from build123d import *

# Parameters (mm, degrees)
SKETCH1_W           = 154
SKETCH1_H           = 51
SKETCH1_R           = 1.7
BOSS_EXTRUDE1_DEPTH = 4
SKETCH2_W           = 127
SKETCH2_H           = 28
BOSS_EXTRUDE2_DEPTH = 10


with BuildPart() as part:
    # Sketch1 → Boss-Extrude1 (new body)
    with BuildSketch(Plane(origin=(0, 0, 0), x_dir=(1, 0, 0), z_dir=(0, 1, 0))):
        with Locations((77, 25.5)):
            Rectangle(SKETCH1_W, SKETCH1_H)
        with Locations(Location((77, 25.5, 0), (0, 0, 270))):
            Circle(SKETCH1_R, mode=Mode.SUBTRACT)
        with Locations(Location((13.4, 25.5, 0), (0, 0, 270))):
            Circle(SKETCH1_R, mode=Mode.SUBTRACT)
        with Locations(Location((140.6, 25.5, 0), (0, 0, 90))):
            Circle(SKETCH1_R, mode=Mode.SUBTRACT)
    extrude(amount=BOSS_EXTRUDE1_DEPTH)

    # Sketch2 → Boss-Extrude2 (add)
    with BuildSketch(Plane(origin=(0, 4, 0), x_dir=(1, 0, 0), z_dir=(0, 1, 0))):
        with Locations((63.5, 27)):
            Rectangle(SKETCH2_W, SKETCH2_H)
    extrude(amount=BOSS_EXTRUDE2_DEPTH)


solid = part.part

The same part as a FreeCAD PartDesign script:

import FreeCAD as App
import Part
import Sketcher
Q = App.Units.Quantity

doc = App.newDocument("Part")
body = doc.addObject("PartDesign::Body", "Body")

sketch1 = body.newObject("Sketcher::SketchObject", "Sketch")
sketch1.AttachmentSupport = (doc.getObject("XZ_Plane"), [""])
sketch1.MapMode = "FlatFace"
sketch1.addGeometry([
    Part.LineSegment(App.Vector(0, -51, 0), App.Vector(0, 0, 0)),
    Part.LineSegment(App.Vector(0, 0, 0), App.Vector(154, 0, 0)),
    Part.LineSegment(App.Vector(154, 0, 0), App.Vector(154, -51, 0)),
    Part.LineSegment(App.Vector(154, -51, 0), App.Vector(0, -51, 0)),
    Part.Circle(App.Vector(13.4, -25.5, 0), App.Vector(0, 0, 1), 1.7),
    Part.Circle(App.Vector(77, -25.5, 0), App.Vector(0, 0, 1), 1.7),
    Part.Circle(App.Vector(140.6, -25.5, 0), App.Vector(0, 0, 1), 1.7),
], False)
sketch1.addConstraint([
    Sketcher.Constraint("Coincident", 0, 2, 1, 1),
    Sketcher.Constraint("Coincident", 1, 2, 2, 1),
    Sketcher.Constraint("Coincident", 2, 2, 3, 1),
    Sketcher.Constraint("Coincident", 3, 2, 0, 1),
    Sketcher.Constraint("Vertical", 0),
    Sketcher.Constraint("Horizontal", 1),
    Sketcher.Constraint("Vertical", 2),
    Sketcher.Constraint("Horizontal", 3),
    Sketcher.Constraint("Coincident", 0, 2, -1, 1),
    Sketcher.Constraint("Equal", 4, 5),
    Sketcher.Constraint("Equal", 5, 6),
    Sketcher.Constraint("Horizontal", 4, 3, 5, 3),
    Sketcher.Constraint("Horizontal", 5, 3, 6, 3),
    Sketcher.Constraint("Diameter", 4, Q("3.4 mm")),
    Sketcher.Constraint("DistanceX", 1, 1, 1, 2, Q("154 mm")),
    Sketcher.Constraint("DistanceY", 0, 1, 0, 2, Q("51 mm")),
    Sketcher.Constraint("DistanceX", -1, 1, 5, 3, Q("77 mm")),
    Sketcher.Constraint("DistanceX", -1, 1, 4, 3, Q("13.4 mm")),
    Sketcher.Constraint("DistanceY", 4, 3, -1, 1, Q("25.5 mm")),
    Sketcher.Constraint("DistanceX", -1, 1, 6, 3, Q("140.6 mm")),
])
pad1 = body.newObject("PartDesign::Pad", "Pad")
pad1.Profile = sketch1
pad1.Length = 4
pad1.Reversed = True

sketch2 = body.newObject("Sketcher::SketchObject", "Sketch001")
sketch2.AttachmentSupport = (doc.getObject("XZ_Plane"), [""])
sketch2.MapMode = "FlatFace"
sketch2.AttachmentOffset = App.Placement(App.Vector(0, 0, -4), App.Rotation())
sketch2.addGeometry([
    Part.LineSegment(App.Vector(0, -41, 0), App.Vector(0, -13, 0)),
    Part.LineSegment(App.Vector(0, -13, 0), App.Vector(127, -13, 0)),
    Part.LineSegment(App.Vector(127, -13, 0), App.Vector(127, -41, 0)),
    Part.LineSegment(App.Vector(127, -41, 0), App.Vector(0, -41, 0)),
], False)
sketch2.addConstraint([
    Sketcher.Constraint("Coincident", 0, 2, 1, 1),
    Sketcher.Constraint("Coincident", 1, 2, 2, 1),
    Sketcher.Constraint("Coincident", 2, 2, 3, 1),
    Sketcher.Constraint("Coincident", 3, 2, 0, 1),
    Sketcher.Constraint("Vertical", 0),
    Sketcher.Constraint("Horizontal", 1),
    Sketcher.Constraint("Vertical", 2),
    Sketcher.Constraint("Horizontal", 3),
    Sketcher.Constraint("PointOnObject", 0, 2, -2),
    Sketcher.Constraint("DistanceX", 1, 1, 1, 2, Q("127 mm")),
    Sketcher.Constraint("DistanceY", 0, 1, 0, 2, Q("28 mm")),
    Sketcher.Constraint("DistanceY", 0, 2, -1, 1, Q("13 mm")),
])
pad2 = body.newObject("PartDesign::Pad", "Pad001")
pad2.Profile = sketch2
pad2.Length = 10
pad2.Reversed = True

doc.recompute()
